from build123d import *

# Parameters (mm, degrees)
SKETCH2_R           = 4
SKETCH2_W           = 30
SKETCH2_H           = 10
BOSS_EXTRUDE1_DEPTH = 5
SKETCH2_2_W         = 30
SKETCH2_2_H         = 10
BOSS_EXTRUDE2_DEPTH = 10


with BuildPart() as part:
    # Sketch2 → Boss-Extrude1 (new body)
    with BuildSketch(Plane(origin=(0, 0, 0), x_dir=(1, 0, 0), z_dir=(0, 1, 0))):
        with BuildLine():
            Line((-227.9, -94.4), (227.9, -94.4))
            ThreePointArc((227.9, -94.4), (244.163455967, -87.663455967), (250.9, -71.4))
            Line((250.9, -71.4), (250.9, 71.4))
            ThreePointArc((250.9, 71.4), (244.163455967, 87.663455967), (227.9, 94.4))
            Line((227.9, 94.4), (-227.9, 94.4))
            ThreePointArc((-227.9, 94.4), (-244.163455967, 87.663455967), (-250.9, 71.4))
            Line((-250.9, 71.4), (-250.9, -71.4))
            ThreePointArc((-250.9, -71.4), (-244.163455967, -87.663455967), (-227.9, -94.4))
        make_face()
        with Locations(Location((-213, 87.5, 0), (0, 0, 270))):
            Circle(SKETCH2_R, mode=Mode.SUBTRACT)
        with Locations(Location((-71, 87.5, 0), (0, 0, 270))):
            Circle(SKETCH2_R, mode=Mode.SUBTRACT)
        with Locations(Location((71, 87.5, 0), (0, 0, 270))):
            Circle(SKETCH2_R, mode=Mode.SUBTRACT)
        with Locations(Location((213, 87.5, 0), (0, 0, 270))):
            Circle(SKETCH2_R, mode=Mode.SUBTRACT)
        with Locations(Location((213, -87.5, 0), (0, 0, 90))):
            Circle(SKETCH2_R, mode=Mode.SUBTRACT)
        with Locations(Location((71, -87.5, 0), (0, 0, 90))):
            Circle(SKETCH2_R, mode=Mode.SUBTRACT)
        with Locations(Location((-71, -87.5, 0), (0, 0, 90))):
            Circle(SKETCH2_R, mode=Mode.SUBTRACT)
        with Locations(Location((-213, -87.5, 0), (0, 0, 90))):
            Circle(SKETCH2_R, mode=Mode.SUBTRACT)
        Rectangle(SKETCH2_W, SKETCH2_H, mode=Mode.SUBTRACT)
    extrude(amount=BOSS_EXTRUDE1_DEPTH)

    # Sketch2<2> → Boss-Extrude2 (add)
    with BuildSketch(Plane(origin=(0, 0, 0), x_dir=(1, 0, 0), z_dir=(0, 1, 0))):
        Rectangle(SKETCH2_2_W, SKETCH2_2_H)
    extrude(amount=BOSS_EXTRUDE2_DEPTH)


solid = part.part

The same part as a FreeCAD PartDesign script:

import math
import FreeCAD as App
import Part
import Sketcher

V = App.Vector

doc = App.newDocument("Part")
params = doc.addObject("Spreadsheet::Sheet", "Params")
for row, (alias, value) in enumerate([
    ("sketch1_diameter", "8 mm"),
    ("sketch1_radius", "23 mm"),
    ("sketch1_width", "30 mm"),
    ("sketch1_height", "10 mm"),
    ("sketch1_width2", "455.8 mm"),
    ("pad1_length", "5 mm"),
    ("sketch2_width", "30 mm"),
    ("sketch2_height", "10 mm"),
    ("pad2_length", "10 mm"),
], start=1):
    params.set(f"A{row}", alias)
    params.set(f"B{row}", "=" + value)
    params.setAlias(f"B{row}", alias)

body = doc.addObject("PartDesign::Body", "Body")

sketch1 = body.newObject("Sketcher::SketchObject", "Sketch")
sketch1.AttachmentSupport = (doc.getObject("XZ_Plane"), [""])
sketch1.MapMode = "FlatFace"
sketch1.addGeometry([
    Part.LineSegment(V(-227.9, 94.4, 0), V(227.9, 94.4, 0)),
    Part.ArcOfCircle(Part.Circle(V(227.9, 71.4, 0), V(0, 0, 1), 23), math.radians(0), math.radians(90)),
    Part.LineSegment(V(250.9, 71.4, 0), V(250.9, -71.4, 0)),
    Part.ArcOfCircle(Part.Circle(V(227.9, -71.4, 0), V(0, 0, 1), 23), math.radians(-90), math.radians(0)),
    Part.LineSegment(V(227.9, -94.4, 0), V(-227.9, -94.4, 0)),
    Part.ArcOfCircle(Part.Circle(V(-227.9, -71.4, 0), V(0, 0, 1), 23), math.radians(-180), math.radians(-90)),
    Part.LineSegment(V(-250.9, -71.4, 0), V(-250.9, 71.4, 0)),
    Part.ArcOfCircle(Part.Circle(V(-227.9, 71.4, 0), V(0, 0, 1), 23), math.radians(90), math.radians(180)),
    Part.Circle(V(-213, 87.5, 0), V(0, 0, 1), 4),
    Part.Circle(V(-71, 87.5, 0), V(0, 0, 1), 4),
    Part.Circle(V(71, 87.5, 0), V(0, 0, 1), 4),
    Part.Circle(V(213, 87.5, 0), V(0, 0, 1), 4),
    Part.Circle(V(-213, -87.5, 0), V(0, 0, 1), 4),
    Part.Circle(V(-71, -87.5, 0), V(0, 0, 1), 4),
    Part.LineSegment(V(15, 5, 0), V(-15, 5, 0)),
    Part.LineSegment(V(-15, 5, 0), V(-15, -5, 0)),
    Part.LineSegment(V(-15, -5, 0), V(15, -5, 0)),
    Part.LineSegment(V(15, -5, 0), V(15, 5, 0)),
    Part.Circle(V(71, -87.5, 0), V(0, 0, 1), 4),
    Part.Circle(V(213, -87.5, 0), V(0, 0, 1), 4),
], False)
sketch1.addConstraint([
    Sketcher.Constraint("Tangent", 0, 2, 1, 2),
    Sketcher.Constraint("Tangent", 1, 1, 2, 1),
    Sketcher.Constraint("Tangent", 2, 2, 3, 2),
    Sketcher.Constraint("Tangent", 3, 1, 4, 1),
    Sketcher.Constraint("Tangent", 4, 2, 5, 2),
    Sketcher.Constraint("Tangent", 5, 1, 6, 1),
    Sketcher.Constraint("Tangent", 6, 2, 7, 2),
    Sketcher.Constraint("Tangent", 7, 1, 0, 1),
    Sketcher.Constraint("Coincident", 14, 2, 15, 1),
    Sketcher.Constraint("Coincident", 15, 2, 16, 1),
    Sketcher.Constraint("Coincident", 16, 2, 17, 1),
    Sketcher.Constraint("Coincident", 17, 2, 14, 1),
    Sketcher.Constraint("Horizontal", 0),
    Sketcher.Constraint("Vertical", 2),
    Sketcher.Constraint("Horizontal", 4),
    Sketcher.Constraint("Vertical", 6),
    Sketcher.Constraint("Horizontal", 14),
    Sketcher.Constraint("Vertical", 15),
    Sketcher.Constraint("Horizontal", 16),
    Sketcher.Constraint("Vertical", 17),
    Sketcher.Constraint("Equal", 1, 3),
    Sketcher.Constraint("Equal", 3, 5),
    Sketcher.Constraint("Equal", 5, 7),
    Sketcher.Constraint("Equal", 8, 9),
    Sketcher.Constraint("Equal", 9, 10),
    Sketcher.Constraint("Equal", 10, 11),
    Sketcher.Constraint("Equal", 11, 12),
    Sketcher.Constraint("Equal", 12, 13),
    Sketcher.Constraint("Equal", 13, 18),
    Sketcher.Constraint("Equal", 18, 19),
    Sketcher.Constraint("Symmetric", 1, 3, 5, 3, -1, 1),
    Sketcher.Constraint("Symmetric", 11, 3, 12, 3, -1, 1),
    Sketcher.Constraint("Symmetric", 10, 3, 13, 3, -1, 1),
    Sketcher.Constraint("Symmetric", 9, 3, 18, 3, -1, 1),
    Sketcher.Constraint("Symmetric", 8, 3, 19, 3, -1, 1),
    Sketcher.Constraint("Symmetric", 14, 2, 16, 2, -1, 1),
    Sketcher.Constraint("Symmetric", 9, 3, 10, 3, -2),
    Sketcher.Constraint("Symmetric", 8, 3, 11, 3, -2),
    Sketcher.Constraint("Horizontal", 8, 3, 9, 3),
    Sketcher.Constraint("Diameter", 8, 8.0),
    Sketcher.Constraint("Radius", 1, 23.0),
    Sketcher.Constraint("DistanceX", 14, 2, 14, 1, 30.0),
    Sketcher.Constraint("DistanceY", 15, 2, 15, 1, 10.0),
    Sketcher.Constraint("DistanceX", 0, 1, 0, 2, 455.8),
    Sketcher.Constraint("DistanceY", 2, 2, 2, 1, 142.8),
    Sketcher.Constraint("DistanceX", 8, 3, -1, 1, 213.0),
    Sketcher.Constraint("DistanceX", 9, 3, -1, 1, 71.0),
    Sketcher.Constraint("DistanceY", 12, 3, 8, 3, 175.0),
])
sketch1.setExpression("Constraints[39]", "Params.sketch1_diameter")
sketch1.setExpression("Constraints[40]", "Params.sketch1_radius")
sketch1.setExpression("Constraints[41]", "Params.sketch1_width")
sketch1.setExpression("Constraints[42]", "Params.sketch1_height")
sketch1.setExpression("Constraints[43]", "Params.sketch1_width2")
pad1 = body.newObject("PartDesign::Pad", "Pad")
pad1.Profile = sketch1
pad1.setExpression("Length", "Params.pad1_length")
pad1.Reversed = True

sketch2 = body.newObject("Sketcher::SketchObject", "Sketch001")
sketch2.AttachmentSupport = (doc.getObject("XZ_Plane"), [""])
sketch2.MapMode = "FlatFace"
sketch2.addGeometry([
    Part.LineSegment(V(-15, -5, 0), V(-15, 5, 0)),
    Part.LineSegment(V(-15, 5, 0), V(15, 5, 0)),
    Part.LineSegment(V(15, 5, 0), V(15, -5, 0)),
    Part.LineSegment(V(15, -5, 0), V(-15, -5, 0)),
], False)
sketch2.addConstraint([
    Sketcher.Constraint("Coincident", 0, 2, 1, 1),
    Sketcher.Constraint("Coincident", 1, 2, 2, 1),
    Sketcher.Constraint("Coincident", 2, 2, 3, 1),
    Sketcher.Constraint("Coincident", 3, 2, 0, 1),
    Sketcher.Constraint("Vertical", 0),
    Sketcher.Constraint("Horizontal", 1),
    Sketcher.Constraint("Vertical", 2),
    Sketcher.Constraint("Horizontal", 3),
    Sketcher.Constraint("Symmetric", 0, 2, 2, 2, -1, 1),
    Sketcher.Constraint("DistanceX", 1, 1, 1, 2, 30.0),
    Sketcher.Constraint("DistanceY", 0, 1, 0, 2, 10.0),
])
sketch2.setExpression("Constraints[9]", "Params.sketch2_width")
sketch2.setExpression("Constraints[10]", "Params.sketch2_height")
pad2 = body.newObject("PartDesign::Pad", "Pad001")
pad2.Profile = sketch2
pad2.setExpression("Length", "Params.pad2_length")
pad2.Reversed = True

doc.recompute()
